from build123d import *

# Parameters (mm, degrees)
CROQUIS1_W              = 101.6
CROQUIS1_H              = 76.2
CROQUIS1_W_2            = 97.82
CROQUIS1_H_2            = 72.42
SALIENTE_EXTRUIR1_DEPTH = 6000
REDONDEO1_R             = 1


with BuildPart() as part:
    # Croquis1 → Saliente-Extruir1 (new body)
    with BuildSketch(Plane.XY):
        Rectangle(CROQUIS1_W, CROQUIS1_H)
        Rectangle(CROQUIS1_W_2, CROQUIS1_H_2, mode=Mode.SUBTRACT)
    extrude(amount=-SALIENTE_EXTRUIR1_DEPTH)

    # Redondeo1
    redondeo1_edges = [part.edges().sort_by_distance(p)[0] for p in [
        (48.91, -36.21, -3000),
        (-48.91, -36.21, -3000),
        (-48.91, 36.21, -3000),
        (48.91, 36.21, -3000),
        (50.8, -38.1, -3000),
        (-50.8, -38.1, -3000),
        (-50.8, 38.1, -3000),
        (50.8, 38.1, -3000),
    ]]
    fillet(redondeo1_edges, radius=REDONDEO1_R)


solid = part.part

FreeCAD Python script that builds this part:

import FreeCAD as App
import Part
import Sketcher
Q = App.Units.Quantity


def edges_at(feature, points):
    """Names of the edges that pass closest to the given points."""
    edges = feature.Shape.Edges
    near = lambda p: min(range(len(edges)), key=lambda i: edges[i].distToShape(Part.Vertex(*p))[0])
    return sorted({f"Edge{near(p) + 1}" for p in points})


def add_polygon(sketch, points):
    """Adds a closed chain of lines whose ends are joined by coincident constraints."""
    first, n = sketch.GeometryCount, len(points)
    for a, b in zip(points, points[1:] + points[:1]):
        sketch.addGeometry(Part.LineSegment(App.Vector(*a, 0), App.Vector(*b, 0)), False)
    for i in range(n):
        sketch.addConstraint(Sketcher.Constraint("Coincident", first + i, 2, first + (i + 1) % n, 1))

doc = App.newDocument("Part")
body = doc.addObject("PartDesign::Body", "Body")

sketch1 = body.newObject("Sketcher::SketchObject", "Sketch")
sketch1.AttachmentSupport = (doc.getObject("XY_Plane"), [""])
sketch1.MapMode = "FlatFace"
add_polygon(sketch1, [(-50.8, 38.1), (-50.8, -38.1), (50.8, -38.1), (50.8, 38.1)])
add_polygon(sketch1, [(48.91, -36.21), (-48.91, -36.21), (-48.91, 36.21), (48.91, 36.21)])
sketch1.addConstraint([
    Sketcher.Constraint("Vertical", 0),
    Sketcher.Constraint("Horizontal", 1),
    Sketcher.Constraint("Vertical", 2),
    Sketcher.Constraint("Horizontal", 3),
    Sketcher.Constraint("Horizontal", 4),
    Sketcher.Constraint("Vertical", 5),
    Sketcher.Constraint("Horizontal", 6),
    Sketcher.Constraint("Vertical", 7),
    Sketcher.Constraint("Symmetric", 0, 2, 2, 2, -1, 1),
    Sketcher.Constraint("Symmetric", 4, 2, 6, 2, -1, 1),
    Sketcher.Constraint("DistanceX", 1, 1, 1, 2, Q("101.6 mm")),
    Sketcher.Constraint("DistanceY", 0, 2, 0, 1, Q("76.2 mm")),
    Sketcher.Constraint("DistanceX", 4, 2, 4, 1, Q("97.82 mm")),
    Sketcher.Constraint("DistanceY", 5, 1, 5, 2, Q("72.42 mm")),
])
pad1 = body.newObject("PartDesign::Pad", "Pad")
pad1.Profile = sketch1
pad1.Length = 6000
pad1.Reversed = True
doc.recompute()

fillet = body.newObject("PartDesign::Fillet", "Fillet")
fillet.Base = (pad1, edges_at(pad1, [
    (48.91, -36.21, -3000),
    (-48.91, -36.21, -3000),
    (-48.91, 36.21, -3000),
    (48.91, 36.21, -3000),
    (50.8, -38.1, -3000),
    (-50.8, -38.1, -3000),
    (-50.8, 38.1, -3000),
    (50.8, 38.1, -3000),
]))
fillet.Radius = 1

doc.recompute()
